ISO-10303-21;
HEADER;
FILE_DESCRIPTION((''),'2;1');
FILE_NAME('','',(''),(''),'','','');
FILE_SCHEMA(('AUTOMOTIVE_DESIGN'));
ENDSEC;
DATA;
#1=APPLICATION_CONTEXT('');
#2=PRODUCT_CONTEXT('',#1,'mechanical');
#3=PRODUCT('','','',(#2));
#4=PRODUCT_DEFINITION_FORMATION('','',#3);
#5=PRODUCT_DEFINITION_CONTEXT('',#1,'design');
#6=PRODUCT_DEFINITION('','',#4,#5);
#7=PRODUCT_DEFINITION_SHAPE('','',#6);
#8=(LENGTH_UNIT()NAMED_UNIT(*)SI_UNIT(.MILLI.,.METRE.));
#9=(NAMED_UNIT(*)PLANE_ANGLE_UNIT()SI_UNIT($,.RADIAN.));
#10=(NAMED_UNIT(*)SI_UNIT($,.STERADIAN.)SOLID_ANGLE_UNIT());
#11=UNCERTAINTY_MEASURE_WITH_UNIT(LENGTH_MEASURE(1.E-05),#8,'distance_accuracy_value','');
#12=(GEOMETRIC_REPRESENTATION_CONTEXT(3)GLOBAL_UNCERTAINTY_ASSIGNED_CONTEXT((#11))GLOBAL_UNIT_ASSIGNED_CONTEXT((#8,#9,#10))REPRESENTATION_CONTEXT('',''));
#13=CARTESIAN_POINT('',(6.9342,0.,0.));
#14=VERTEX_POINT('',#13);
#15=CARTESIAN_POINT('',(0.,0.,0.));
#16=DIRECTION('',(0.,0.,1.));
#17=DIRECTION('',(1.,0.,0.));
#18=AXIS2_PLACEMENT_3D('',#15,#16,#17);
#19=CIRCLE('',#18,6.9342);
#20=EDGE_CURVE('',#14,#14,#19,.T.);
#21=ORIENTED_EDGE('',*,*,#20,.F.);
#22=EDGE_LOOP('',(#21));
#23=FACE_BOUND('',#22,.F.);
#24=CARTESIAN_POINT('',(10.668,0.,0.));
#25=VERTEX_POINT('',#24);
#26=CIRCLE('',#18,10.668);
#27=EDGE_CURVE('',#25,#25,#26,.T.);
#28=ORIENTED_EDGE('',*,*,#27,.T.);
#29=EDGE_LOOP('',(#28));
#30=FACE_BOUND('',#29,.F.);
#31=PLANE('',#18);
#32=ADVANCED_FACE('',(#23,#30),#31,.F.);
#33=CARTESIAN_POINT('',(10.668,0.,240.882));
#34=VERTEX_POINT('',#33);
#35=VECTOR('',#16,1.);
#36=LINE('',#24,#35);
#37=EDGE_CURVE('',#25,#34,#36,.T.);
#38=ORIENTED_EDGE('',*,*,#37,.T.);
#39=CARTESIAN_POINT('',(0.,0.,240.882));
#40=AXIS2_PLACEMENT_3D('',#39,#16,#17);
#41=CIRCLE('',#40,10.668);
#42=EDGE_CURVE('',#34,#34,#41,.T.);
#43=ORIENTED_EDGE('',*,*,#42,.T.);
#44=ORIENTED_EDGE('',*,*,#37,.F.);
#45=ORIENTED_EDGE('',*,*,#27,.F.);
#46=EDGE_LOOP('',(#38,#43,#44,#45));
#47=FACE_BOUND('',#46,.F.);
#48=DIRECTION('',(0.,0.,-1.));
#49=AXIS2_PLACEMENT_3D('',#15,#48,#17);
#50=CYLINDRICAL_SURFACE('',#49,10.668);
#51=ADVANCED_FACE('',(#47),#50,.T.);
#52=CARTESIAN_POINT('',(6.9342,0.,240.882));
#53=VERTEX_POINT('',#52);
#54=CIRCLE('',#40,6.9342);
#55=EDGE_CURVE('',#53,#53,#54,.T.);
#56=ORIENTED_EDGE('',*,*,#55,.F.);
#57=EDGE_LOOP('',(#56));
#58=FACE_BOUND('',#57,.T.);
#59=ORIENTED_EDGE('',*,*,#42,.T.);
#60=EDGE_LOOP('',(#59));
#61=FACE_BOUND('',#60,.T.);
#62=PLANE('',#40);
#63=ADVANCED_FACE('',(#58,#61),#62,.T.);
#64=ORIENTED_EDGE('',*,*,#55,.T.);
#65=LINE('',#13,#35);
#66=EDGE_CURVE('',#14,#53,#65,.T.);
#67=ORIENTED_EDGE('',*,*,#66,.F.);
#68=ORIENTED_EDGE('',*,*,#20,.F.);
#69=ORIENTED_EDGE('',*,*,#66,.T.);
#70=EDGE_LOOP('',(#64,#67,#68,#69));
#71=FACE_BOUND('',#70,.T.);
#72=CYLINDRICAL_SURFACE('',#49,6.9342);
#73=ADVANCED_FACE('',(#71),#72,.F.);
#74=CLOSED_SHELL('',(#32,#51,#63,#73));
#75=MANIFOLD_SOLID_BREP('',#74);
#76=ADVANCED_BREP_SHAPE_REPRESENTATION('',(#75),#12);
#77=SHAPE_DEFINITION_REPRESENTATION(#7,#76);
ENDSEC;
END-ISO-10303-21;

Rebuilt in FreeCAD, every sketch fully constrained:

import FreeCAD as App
import Part
import Sketcher
Q = App.Units.Quantity

doc = App.newDocument("Part")
params = doc.addObject("Spreadsheet::Sheet", "Params")
for row, (alias, value) in enumerate([
    ("sketch1_diameter", "0.84 in"),
    ("sketch1_diameter2", "0.546 in"),
    ("pad1_length", "240.882 mm"),
], start=1):
    params.set(f"A{row}", alias)
    params.set(f"B{row}", "=" + value)
    params.setAlias(f"B{row}", alias)

body = doc.addObject("PartDesign::Body", "Body")

sketch1 = doc.addObject("Sketcher::SketchObject", "Sketch")
body.addObject(sketch1)
sketch1.AttachmentSupport = (doc.XY_Plane, [""])
sketch1.MapMode = "FlatFace"
sketch1.addGeometry(Part.Circle(App.Vector(0, 0, 0), App.Vector(0, 0, 1), 11), False)
sketch1.addGeometry(Part.Circle(App.Vector(0, 0, 0), App.Vector(0, 0, 1), 7), False)
sketch1.addConstraint(Sketcher.Constraint("Coincident", 0, 3, -1, 1))
sketch1.addConstraint(Sketcher.Constraint("Coincident", 1, 3, -1, 1))
sketch1.addConstraint(Sketcher.Constraint("Diameter", 0, Q("0.84 in")))
sketch1.addConstraint(Sketcher.Constraint("Diameter", 1, Q("0.546 in")))
sketch1.setExpression("Constraints[2]", "Params.sketch1_diameter")
sketch1.setExpression("Constraints[3]", "Params.sketch1_diameter2")
pad1 = doc.addObject("PartDesign::Pad", "Pad")
body.addObject(pad1)
pad1.Profile = sketch1
pad1.setExpression("Length", "Params.pad1_length")

doc.recompute()
